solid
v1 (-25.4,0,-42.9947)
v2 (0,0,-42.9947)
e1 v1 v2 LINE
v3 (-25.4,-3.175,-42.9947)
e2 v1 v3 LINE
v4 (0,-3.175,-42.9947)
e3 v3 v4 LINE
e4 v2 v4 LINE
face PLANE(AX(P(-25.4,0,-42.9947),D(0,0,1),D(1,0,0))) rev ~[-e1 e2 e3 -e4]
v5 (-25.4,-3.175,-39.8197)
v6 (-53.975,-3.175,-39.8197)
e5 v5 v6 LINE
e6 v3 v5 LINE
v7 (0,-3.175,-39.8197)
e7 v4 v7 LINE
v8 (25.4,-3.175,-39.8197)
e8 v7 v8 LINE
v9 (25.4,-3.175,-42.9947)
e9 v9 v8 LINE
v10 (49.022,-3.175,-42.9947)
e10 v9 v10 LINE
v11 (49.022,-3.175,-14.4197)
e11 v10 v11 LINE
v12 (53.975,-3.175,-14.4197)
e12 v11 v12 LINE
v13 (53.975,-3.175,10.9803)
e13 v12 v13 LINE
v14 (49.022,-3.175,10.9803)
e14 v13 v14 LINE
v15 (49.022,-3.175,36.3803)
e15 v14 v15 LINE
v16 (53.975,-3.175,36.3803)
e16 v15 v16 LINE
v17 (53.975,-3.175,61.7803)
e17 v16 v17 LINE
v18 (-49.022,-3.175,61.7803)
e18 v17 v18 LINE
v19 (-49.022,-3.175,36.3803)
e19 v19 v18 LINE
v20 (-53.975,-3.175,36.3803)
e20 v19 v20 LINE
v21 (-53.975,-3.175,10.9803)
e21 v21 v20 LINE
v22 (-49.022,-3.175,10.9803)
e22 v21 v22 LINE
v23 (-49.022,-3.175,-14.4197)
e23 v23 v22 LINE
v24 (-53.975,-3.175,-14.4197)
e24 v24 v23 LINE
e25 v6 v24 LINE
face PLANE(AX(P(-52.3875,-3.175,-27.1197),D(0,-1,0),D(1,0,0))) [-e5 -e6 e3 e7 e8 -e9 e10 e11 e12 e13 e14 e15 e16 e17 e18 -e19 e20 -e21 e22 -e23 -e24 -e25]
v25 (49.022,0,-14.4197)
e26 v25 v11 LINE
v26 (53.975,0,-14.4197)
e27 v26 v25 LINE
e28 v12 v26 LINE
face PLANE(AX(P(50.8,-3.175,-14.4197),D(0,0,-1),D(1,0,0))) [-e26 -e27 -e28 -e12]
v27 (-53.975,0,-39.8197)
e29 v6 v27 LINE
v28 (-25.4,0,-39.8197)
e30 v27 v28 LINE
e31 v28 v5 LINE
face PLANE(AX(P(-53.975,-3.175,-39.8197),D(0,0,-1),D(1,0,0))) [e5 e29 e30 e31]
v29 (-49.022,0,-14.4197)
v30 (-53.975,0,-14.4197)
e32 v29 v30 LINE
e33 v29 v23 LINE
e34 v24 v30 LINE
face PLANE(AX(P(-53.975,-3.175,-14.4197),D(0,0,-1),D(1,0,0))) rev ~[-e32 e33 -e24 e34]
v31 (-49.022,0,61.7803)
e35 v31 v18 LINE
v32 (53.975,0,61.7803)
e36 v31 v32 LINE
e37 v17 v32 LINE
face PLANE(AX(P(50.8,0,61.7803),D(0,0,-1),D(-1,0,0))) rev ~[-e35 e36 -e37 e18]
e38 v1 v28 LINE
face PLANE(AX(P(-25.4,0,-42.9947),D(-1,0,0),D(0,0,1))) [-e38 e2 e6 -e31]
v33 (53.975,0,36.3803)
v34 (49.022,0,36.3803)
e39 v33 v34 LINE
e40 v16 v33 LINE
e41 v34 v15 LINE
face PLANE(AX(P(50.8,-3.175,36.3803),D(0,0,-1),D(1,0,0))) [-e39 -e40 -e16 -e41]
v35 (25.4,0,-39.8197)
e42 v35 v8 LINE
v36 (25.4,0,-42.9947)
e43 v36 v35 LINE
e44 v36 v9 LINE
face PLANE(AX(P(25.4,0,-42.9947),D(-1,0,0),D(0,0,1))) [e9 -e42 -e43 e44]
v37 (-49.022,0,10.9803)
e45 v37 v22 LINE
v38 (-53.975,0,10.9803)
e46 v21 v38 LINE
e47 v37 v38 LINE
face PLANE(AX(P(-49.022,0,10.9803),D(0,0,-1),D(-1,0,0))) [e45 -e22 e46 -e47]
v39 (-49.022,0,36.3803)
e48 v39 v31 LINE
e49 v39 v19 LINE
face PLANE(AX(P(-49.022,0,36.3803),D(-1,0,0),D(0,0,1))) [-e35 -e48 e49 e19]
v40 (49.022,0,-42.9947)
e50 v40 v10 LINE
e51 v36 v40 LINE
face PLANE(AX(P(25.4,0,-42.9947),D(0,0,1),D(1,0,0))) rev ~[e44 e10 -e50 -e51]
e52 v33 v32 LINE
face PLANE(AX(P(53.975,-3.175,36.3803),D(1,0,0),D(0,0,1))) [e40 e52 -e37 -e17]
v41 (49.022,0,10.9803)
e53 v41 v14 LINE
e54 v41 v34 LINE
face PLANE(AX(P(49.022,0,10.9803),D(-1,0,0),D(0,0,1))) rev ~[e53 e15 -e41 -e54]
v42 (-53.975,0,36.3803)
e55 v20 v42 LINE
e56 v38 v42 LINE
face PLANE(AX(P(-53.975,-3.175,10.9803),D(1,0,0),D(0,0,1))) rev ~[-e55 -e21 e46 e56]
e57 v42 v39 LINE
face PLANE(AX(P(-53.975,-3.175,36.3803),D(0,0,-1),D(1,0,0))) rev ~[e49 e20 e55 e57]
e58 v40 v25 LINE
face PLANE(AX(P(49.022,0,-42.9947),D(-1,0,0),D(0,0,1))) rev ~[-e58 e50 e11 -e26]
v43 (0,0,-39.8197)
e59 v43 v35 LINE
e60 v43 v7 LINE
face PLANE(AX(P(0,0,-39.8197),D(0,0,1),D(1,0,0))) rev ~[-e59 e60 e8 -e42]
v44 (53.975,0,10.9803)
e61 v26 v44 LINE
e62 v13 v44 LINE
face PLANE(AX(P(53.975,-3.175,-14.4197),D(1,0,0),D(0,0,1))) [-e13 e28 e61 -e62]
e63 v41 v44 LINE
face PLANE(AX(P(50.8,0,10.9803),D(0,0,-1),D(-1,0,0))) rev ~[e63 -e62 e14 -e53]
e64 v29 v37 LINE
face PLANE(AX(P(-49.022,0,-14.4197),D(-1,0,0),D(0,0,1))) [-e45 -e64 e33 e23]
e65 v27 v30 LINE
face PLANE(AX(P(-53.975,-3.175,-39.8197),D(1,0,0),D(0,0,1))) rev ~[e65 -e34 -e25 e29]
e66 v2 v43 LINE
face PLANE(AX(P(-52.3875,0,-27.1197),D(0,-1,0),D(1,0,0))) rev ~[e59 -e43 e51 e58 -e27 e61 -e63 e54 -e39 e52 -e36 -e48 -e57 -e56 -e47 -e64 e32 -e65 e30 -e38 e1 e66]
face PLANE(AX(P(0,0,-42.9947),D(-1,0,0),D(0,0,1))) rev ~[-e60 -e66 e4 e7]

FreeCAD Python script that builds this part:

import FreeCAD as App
import Part
import Sketcher
Q = App.Units.Quantity


def add_polygon(sketch, points):
    """Adds a closed chain of lines whose ends are joined by coincident constraints."""
    first, n = sketch.GeometryCount, len(points)
    for a, b in zip(points, points[1:] + points[:1]):
        sketch.addGeometry(Part.LineSegment(App.Vector(*a, 0), App.Vector(*b, 0)), False)
    for i in range(n):
        sketch.addConstraint(Sketcher.Constraint("Coincident", first + i, 2, first + (i + 1) % n, 1))

doc = App.newDocument("Part")
body = doc.addObject("PartDesign::Body", "Body")

# Sketch on XZ plane
sketch1 = body.newObject("Sketcher::SketchObject", "Sketch")
sketch1.AttachmentSupport = (doc.getObject("XZ_Plane"), [""])
sketch1.MapMode = "FlatFace"
add_polygon(sketch1, [(50.8, 61.7803), (-50.8, 61.7803), (-50.8, -39.8197), (-25.4, -39.8197), (-25.4, -42.9947), (0, -42.9947), (0, -39.8197), (25.4, -39.8197), (25.4, -42.9947), (50.8, -42.9947)])  # lines 0-9
sketch1.addConstraint(Sketcher.Constraint("Horizontal", 0))
sketch1.addConstraint(Sketcher.Constraint("Vertical", 1))
sketch1.addConstraint(Sketcher.Constraint("Horizontal", 2))
sketch1.addConstraint(Sketcher.Constraint("Vertical", 3))
sketch1.addConstraint(Sketcher.Constraint("Horizontal", 4))
sketch1.addConstraint(Sketcher.Constraint("Vertical", 5))
sketch1.addConstraint(Sketcher.Constraint("Horizontal", 6))
sketch1.addConstraint(Sketcher.Constraint("Vertical", 7))
sketch1.addConstraint(Sketcher.Constraint("Horizontal", 8))
sketch1.addConstraint(Sketcher.Constraint("Vertical", 9))
sketch1.addConstraint(Sketcher.Constraint("Symmetric", 2, 2, 6, 2, -2))
sketch1.addConstraint(Sketcher.Constraint("PointOnObject", 4, 2, -2))
sketch1.addConstraint(Sketcher.Constraint("Horizontal", 4, 2, 7, 2))
sketch1.addConstraint(Sketcher.Constraint("Equal", 2, 4))
sketch1.addConstraint(Sketcher.Constraint("Equal", 6, 8))
sketch1.addConstraint(Sketcher.Constraint("Equal", 0, 1))
sketch1.addConstraint(Sketcher.Constraint("DistanceX", 0, 2, 0, 1, Q("4 in")))
sketch1.addConstraint(Sketcher.Constraint("DistanceY", 3, 2, 3, 1, Q("0.125 in")))
sketch1.addConstraint(Sketcher.Constraint("DistanceY", -1, 1, 0, 2, Q("61.7803 mm")))
pad1 = body.newObject("PartDesign::Pad", "Pad")
pad1.Profile = sketch1
pad1.Length = Q("0.125 in")

# Sketch on XZ plane
sketch2 = body.newObject("Sketcher::SketchObject", "Sketch001")
sketch2.AttachmentSupport = (doc.getObject("XZ_Plane"), [""])
sketch2.MapMode = "FlatFace"
sketch2.AttachmentOffset = App.Placement(App.Vector(0, 0, 0.125 * 25.4), App.Rotation())
add_polygon(sketch2, [(-53.975, 36.3803), (-53.975, 10.9803), (-50.8, 10.9803), (-50.8, 36.3803)])  # lines 0-3
add_polygon(sketch2, [(-53.975, -14.4197), (-53.975, -39.8197), (-50.8, -39.8197), (-50.8, -14.4197)])  # lines 4-7
add_polygon(sketch2, [(50.8, 61.7803), (50.8, 36.3803), (53.975, 36.3803), (53.975, 61.7803)])  # lines 8-11
add_polygon(sketch2, [(50.8, 10.9803), (50.8, -14.4197), (53.975, -14.4197), (53.975, 10.9803)])  # lines 12-15
sketch2.addConstraint(Sketcher.Constraint("Vertical", 0))
sketch2.addConstraint(Sketcher.Constraint("Horizontal", 1))
sketch2.addConstraint(Sketcher.Constraint("Vertical", 2))
sketch2.addConstraint(Sketcher.Constraint("Horizontal", 3))
sketch2.addConstraint(Sketcher.Constraint("Vertical", 4))
sketch2.addConstraint(Sketcher.Constraint("Horizontal", 5))
sketch2.addConstraint(Sketcher.Constraint("Vertical", 6))
sketch2.addConstraint(Sketcher.Constraint("Horizontal", 7))
sketch2.addConstraint(Sketcher.Constraint("Vertical", 8))
sketch2.addConstraint(Sketcher.Constraint("Horizontal", 9))
sketch2.addConstraint(Sketcher.Constraint("Vertical", 10))
sketch2.addConstraint(Sketcher.Constraint("Horizontal", 11))
sketch2.addConstraint(Sketcher.Constraint("Vertical", 12))
sketch2.addConstraint(Sketcher.Constraint("Horizontal", 13))
sketch2.addConstraint(Sketcher.Constraint("Vertical", 14))
sketch2.addConstraint(Sketcher.Constraint("Horizontal", 15))
sketch2.addConstraint(Sketcher.Constraint("Symmetric", 2, 2, 8, 2, -2))
sketch2.addConstraint(Sketcher.Constraint("Symmetric", 6, 2, 12, 2, -2))
sketch2.addConstraint(Sketcher.Constraint("Symmetric", 0, 2, 14, 2, -2))
sketch2.addConstraint(Sketcher.Constraint("Vertical", 3, 2, 4, 2))
sketch2.addConstraint(Sketcher.Constraint("Vertical", 2, 2, 5, 2))
sketch2.addConstraint(Sketcher.Constraint("Vertical", 10, 2, 13, 2))
sketch2.addConstraint(Sketcher.Constraint("Equal", 2, 4))
sketch2.addConstraint(Sketcher.Constraint("Equal", 6, 8))
sketch2.addConstraint(Sketcher.Constraint("Equal", 10, 12))
sketch2.addConstraint(Sketcher.Constraint("DistanceY", 0, 2, 0, 1, Q("1 in")))
sketch2.addConstraint(Sketcher.Constraint("DistanceX", 1, 2, -1, 1, Q("2 in")))
sketch2.addConstraint(Sketcher.Constraint("DistanceX", 1, 1, 1, 2, Q("0.125 in")))
sketch2.addConstraint(Sketcher.Constraint("DistanceY", -1, 1, 0, 2, Q("10.9803 mm")))
pad2 = body.newObject("PartDesign::Pad", "Pad001")
pad2.Profile = sketch2
pad2.Length = Q("0.125 in")
pad2.Reversed = True

# Sketch on XZ plane
sketch3 = body.newObject("Sketcher::SketchObject", "Sketch002")
sketch3.AttachmentSupport = (doc.getObject("XZ_Plane"), [""])
sketch3.MapMode = "FlatFace"
add_polygon(sketch3, [(50.8, 36.3803), (50.8, 10.9803), (49.022, 10.9803), (49.022, 36.3803)])  # lines 0-3
add_polygon(sketch3, [(-49.022, 61.7803), (-49.022, 36.3803), (-50.8, 36.3803), (-50.8, 61.7803)])  # lines 4-7
add_polygon(sketch3, [(-49.022, 10.9803), (-49.022, -14.4197), (-50.8, -14.4197), (-50.8, 10.9803)])  # lines 8-11
add_polygon(sketch3, [(50.8, -14.4197), (50.8, -42.9947), (49.022, -42.9947), (49.022, -14.4197)])  # lines 12-15
sketch3.addConstraint(Sketcher.Constraint("Vertical", 0))
sketch3.addConstraint(Sketcher.Constraint("Horizontal", 1))
sketch3.addConstraint(Sketcher.Constraint("Vertical", 2))
sketch3.addConstraint(Sketcher.Constraint("Horizontal", 3))
sketch3.addConstraint(Sketcher.Constraint("Vertical", 4))
sketch3.addConstraint(Sketcher.Constraint("Horizontal", 5))
sketch3.addConstraint(Sketcher.Constraint("Vertical", 6))
sketch3.addConstraint(Sketcher.Constraint("Horizontal", 7))
sketch3.addConstraint(Sketcher.Constraint("Vertical", 8))
sketch3.addConstraint(Sketcher.Constraint("Horizontal", 9))
sketch3.addConstraint(Sketcher.Constraint("Vertical", 10))
sketch3.addConstraint(Sketcher.Constraint("Horizontal", 11))
sketch3.addConstraint(Sketcher.Constraint("Vertical", 12))
sketch3.addConstraint(Sketcher.Constraint("Horizontal", 13))
sketch3.addConstraint(Sketcher.Constraint("Vertical", 14))
sketch3.addConstraint(Sketcher.Constraint("Horizontal", 15))
sketch3.addConstraint(Sketcher.Constraint("Symmetric", 2, 2, 4, 2, -2))
sketch3.addConstraint(Sketcher.Constraint("Symmetric", 0, 2, 10, 2, -2))
sketch3.addConstraint(Sketcher.Constraint("Symmetric", 8, 2, 14, 2, -2))
sketch3.addConstraint(Sketcher.Constraint("Vertical", 7, 2, 8, 2))
sketch3.addConstraint(Sketcher.Constraint("Vertical", 6, 2, 9, 2))
sketch3.addConstraint(Sketcher.Constraint("Vertical", 3, 2, 12, 2))
sketch3.addConstraint(Sketcher.Constraint("Equal", 2, 4))
sketch3.addConstraint(Sketcher.Constraint("Equal", 6, 8))
sketch3.addConstraint(Sketcher.Constraint("DistanceY", 0, 2, 0, 1, Q("1 in")))
sketch3.addConstraint(Sketcher.Constraint("DistanceX", -1, 1, 0, 2, Q("2 in")))
sketch3.addConstraint(Sketcher.Constraint("DistanceX", 1, 2, 1, 1, Q("0.07 in")))
sketch3.addConstraint(Sketcher.Constraint("DistanceY", 12, 2, 12, 1, Q("1.125 in")))
sketch3.addConstraint(Sketcher.Constraint("DistanceY", -1, 1, 0, 2, Q("10.9803 mm")))
pocket1 = body.newObject("PartDesign::Pocket", "Pocket")
pocket1.Profile = sketch3
pocket1.Length = Q("0.125 in")
pocket1.Reversed = True

doc.recompute()
